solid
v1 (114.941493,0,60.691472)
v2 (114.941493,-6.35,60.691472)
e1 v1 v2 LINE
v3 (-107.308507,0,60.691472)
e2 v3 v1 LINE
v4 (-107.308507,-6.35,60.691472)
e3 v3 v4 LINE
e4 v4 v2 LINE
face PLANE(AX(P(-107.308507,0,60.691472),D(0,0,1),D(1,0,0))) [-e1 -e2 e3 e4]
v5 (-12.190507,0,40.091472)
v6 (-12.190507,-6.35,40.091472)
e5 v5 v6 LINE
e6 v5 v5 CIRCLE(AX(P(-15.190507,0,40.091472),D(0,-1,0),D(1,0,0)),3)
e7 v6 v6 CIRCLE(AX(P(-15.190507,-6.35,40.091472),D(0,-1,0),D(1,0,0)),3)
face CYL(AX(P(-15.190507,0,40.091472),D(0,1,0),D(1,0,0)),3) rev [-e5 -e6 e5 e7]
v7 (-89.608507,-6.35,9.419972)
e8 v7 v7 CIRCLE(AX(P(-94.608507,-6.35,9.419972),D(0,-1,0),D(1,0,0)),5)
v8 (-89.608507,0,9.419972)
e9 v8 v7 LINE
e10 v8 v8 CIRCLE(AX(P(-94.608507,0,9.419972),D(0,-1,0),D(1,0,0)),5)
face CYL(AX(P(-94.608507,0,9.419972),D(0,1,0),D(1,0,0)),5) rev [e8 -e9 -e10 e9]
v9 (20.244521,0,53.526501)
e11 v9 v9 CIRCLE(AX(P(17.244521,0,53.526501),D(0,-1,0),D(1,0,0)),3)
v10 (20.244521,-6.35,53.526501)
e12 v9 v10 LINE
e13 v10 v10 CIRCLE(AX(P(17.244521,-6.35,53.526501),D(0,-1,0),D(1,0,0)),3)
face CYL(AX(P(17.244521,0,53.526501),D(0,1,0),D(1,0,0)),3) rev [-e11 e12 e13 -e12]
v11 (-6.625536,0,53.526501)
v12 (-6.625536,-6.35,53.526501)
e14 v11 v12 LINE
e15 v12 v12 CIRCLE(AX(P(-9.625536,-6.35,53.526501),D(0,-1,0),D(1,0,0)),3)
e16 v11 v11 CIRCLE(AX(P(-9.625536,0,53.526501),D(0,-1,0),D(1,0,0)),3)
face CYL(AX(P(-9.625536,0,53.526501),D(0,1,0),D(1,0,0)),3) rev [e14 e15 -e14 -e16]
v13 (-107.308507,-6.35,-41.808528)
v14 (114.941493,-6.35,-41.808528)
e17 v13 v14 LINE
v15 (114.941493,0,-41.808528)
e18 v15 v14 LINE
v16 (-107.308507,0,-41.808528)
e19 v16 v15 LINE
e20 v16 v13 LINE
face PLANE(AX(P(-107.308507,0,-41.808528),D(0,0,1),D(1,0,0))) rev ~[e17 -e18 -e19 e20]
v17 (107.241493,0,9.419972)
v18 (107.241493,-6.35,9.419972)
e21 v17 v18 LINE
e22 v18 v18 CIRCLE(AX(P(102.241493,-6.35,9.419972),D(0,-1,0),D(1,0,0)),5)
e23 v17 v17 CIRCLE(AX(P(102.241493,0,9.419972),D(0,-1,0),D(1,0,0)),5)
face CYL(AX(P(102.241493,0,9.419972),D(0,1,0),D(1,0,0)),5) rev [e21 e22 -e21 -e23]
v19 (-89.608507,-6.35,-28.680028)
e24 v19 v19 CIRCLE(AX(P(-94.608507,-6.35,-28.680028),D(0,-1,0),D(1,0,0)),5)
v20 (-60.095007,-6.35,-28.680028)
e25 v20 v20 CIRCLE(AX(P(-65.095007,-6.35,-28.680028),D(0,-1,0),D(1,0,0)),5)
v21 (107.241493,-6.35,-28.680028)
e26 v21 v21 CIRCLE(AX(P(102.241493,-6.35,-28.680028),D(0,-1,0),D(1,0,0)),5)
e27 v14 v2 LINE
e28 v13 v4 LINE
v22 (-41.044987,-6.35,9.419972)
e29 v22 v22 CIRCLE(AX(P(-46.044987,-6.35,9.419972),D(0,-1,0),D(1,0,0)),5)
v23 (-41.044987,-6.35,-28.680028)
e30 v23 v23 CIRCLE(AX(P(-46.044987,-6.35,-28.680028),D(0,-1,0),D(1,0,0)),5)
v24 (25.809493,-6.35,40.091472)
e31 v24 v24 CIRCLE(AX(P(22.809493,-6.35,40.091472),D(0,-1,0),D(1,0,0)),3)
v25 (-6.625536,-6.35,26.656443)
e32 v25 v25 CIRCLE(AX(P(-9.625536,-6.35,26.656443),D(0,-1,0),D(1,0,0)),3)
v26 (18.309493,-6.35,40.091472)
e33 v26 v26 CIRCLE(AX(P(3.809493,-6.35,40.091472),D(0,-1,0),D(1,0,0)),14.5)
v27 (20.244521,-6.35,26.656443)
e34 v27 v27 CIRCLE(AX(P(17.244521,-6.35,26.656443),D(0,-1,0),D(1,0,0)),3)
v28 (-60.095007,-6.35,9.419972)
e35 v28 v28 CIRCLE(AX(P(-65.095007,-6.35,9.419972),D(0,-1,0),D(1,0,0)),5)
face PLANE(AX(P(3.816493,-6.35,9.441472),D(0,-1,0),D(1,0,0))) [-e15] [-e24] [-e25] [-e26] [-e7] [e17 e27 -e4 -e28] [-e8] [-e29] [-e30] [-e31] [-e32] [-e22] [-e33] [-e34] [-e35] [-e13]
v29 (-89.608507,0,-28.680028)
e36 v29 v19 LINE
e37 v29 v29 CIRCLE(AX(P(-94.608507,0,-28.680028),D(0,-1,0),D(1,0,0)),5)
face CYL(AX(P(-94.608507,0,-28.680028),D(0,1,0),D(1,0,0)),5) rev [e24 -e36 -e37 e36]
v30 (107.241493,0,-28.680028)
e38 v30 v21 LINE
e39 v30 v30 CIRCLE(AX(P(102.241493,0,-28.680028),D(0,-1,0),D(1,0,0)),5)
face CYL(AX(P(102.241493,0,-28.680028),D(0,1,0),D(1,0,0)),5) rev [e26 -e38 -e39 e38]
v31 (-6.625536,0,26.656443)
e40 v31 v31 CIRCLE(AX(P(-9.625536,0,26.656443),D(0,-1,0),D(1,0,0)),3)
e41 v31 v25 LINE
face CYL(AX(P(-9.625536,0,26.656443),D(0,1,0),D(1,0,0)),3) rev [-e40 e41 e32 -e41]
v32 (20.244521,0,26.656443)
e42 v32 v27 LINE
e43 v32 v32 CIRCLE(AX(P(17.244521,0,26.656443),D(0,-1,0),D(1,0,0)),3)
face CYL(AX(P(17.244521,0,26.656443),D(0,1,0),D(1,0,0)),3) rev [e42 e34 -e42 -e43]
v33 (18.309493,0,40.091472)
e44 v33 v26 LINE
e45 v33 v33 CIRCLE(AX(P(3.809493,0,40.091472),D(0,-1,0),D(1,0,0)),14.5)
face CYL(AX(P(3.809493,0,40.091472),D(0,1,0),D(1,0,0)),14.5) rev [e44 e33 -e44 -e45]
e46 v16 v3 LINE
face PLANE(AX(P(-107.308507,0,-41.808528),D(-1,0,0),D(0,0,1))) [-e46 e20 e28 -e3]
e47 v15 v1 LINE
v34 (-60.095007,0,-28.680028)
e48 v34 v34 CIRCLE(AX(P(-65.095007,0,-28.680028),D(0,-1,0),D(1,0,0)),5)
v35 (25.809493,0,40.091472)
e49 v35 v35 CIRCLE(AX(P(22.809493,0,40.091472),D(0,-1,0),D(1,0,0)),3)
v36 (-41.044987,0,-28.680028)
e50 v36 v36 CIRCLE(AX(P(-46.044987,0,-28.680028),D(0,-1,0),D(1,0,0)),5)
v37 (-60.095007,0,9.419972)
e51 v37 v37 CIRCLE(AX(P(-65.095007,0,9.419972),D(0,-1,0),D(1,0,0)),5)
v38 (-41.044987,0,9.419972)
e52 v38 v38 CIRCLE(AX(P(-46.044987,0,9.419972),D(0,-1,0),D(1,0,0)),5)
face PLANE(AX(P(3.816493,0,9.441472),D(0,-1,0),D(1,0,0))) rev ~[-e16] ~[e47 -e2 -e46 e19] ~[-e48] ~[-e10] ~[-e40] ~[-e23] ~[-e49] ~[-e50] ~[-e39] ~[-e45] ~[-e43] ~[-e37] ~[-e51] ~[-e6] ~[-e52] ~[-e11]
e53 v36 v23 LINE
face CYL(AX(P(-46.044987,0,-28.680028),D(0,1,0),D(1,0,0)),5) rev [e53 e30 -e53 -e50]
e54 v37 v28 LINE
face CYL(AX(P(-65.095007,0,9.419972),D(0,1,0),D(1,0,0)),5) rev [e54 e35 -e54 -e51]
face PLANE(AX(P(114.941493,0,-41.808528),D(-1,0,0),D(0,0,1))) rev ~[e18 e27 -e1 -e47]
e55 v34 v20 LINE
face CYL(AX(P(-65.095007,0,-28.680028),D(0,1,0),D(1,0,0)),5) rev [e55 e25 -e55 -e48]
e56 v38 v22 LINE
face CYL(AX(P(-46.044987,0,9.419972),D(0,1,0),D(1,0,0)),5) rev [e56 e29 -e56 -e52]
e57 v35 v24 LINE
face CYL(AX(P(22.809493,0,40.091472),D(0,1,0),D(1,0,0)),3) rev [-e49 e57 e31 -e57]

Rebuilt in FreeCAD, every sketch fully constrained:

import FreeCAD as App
import Part
import Sketcher

V = App.Vector
Q = App.Units.Quantity

doc = App.newDocument("Part")
body = doc.addObject("PartDesign::Body", "Body")

sketch1 = doc.addObject("Sketcher::SketchObject", "Sketch")
body.addObject(sketch1)
sketch1.AttachmentSupport = (doc.XZ_Plane, [""])
sketch1.MapMode = "FlatFace"
sketch1.addGeometry(Part.LineSegment(V(-107.3, 60.7, 0), V(-107.3, -41.8, 0)), False)
sketch1.addGeometry(Part.LineSegment(V(-107.3, -41.8, 0), V(114.9, -41.8, 0)), False)
sketch1.addGeometry(Part.LineSegment(V(114.9, -41.8, 0), V(114.9, 60.7, 0)), False)
sketch1.addGeometry(Part.LineSegment(V(114.9, 60.7, 0), V(-107.3, 60.7, 0)), False)
sketch1.addGeometry(Part.Circle(V(-94.6, -28.7, 0), V(0, 0, 1), 5), False)
sketch1.addGeometry(Part.Circle(V(-65.1, -28.7, 0), V(0, 0, 1), 5), False)
sketch1.addGeometry(Part.Circle(V(-46, -28.7, 0), V(0, 0, 1), 5), False)
sketch1.addGeometry(Part.Circle(V(-94.6, 9.4, 0), V(0, 0, 1), 5), False)
sketch1.addGeometry(Part.Circle(V(-65.1, 9.4, 0), V(0, 0, 1), 5), False)
sketch1.addGeometry(Part.Circle(V(-46, 9.4, 0), V(0, 0, 1), 5), False)
sketch1.addGeometry(Part.Circle(V(102.2, -28.7, 0), V(0, 0, 1), 5), False)
sketch1.addGeometry(Part.Circle(V(102.2, 9.4, 0), V(0, 0, 1), 5), False)
sketch1.addGeometry(Part.Circle(V(-9.6, 26.7, 0), V(0, 0, 1), 3), False)
sketch1.addGeometry(Part.Circle(V(-15.2, 40.1, 0), V(0, 0, 1), 3), False)
sketch1.addGeometry(Part.Circle(V(3.8, 40.1, 0), V(0, 0, 1), 14.5), False)
sketch1.addGeometry(Part.Circle(V(-9.6, 53.5, 0), V(0, 0, 1), 3), False)
sketch1.addGeometry(Part.Circle(V(17.2, 26.7, 0), V(0, 0, 1), 3), False)
sketch1.addGeometry(Part.Circle(V(22.8, 40.1, 0), V(0, 0, 1), 3), False)
sketch1.addGeometry(Part.Circle(V(17.2, 53.5, 0), V(0, 0, 1), 3), False)
sketch1.addConstraint(Sketcher.Constraint("Coincident", 0, 2, 1, 1))
sketch1.addConstraint(Sketcher.Constraint("Coincident", 1, 2, 2, 1))
sketch1.addConstraint(Sketcher.Constraint("Coincident", 2, 2, 3, 1))
sketch1.addConstraint(Sketcher.Constraint("Coincident", 3, 2, 0, 1))
sketch1.addConstraint(Sketcher.Constraint("Vertical", 0))
sketch1.addConstraint(Sketcher.Constraint("Horizontal", 1))
sketch1.addConstraint(Sketcher.Constraint("Vertical", 2))
sketch1.addConstraint(Sketcher.Constraint("Horizontal", 3))
sketch1.addConstraint(Sketcher.Constraint("Equal", 4, 5))
sketch1.addConstraint(Sketcher.Constraint("Equal", 5, 6))
sketch1.addConstraint(Sketcher.Constraint("Equal", 6, 7))
sketch1.addConstraint(Sketcher.Constraint("Equal", 7, 8))
sketch1.addConstraint(Sketcher.Constraint("Equal", 8, 9))
sketch1.addConstraint(Sketcher.Constraint("Equal", 9, 10))
sketch1.addConstraint(Sketcher.Constraint("Equal", 10, 11))
sketch1.addConstraint(Sketcher.Constraint("Equal", 12, 13))
sketch1.addConstraint(Sketcher.Constraint("Equal", 13, 15))
sketch1.addConstraint(Sketcher.Constraint("Equal", 15, 16))
sketch1.addConstraint(Sketcher.Constraint("Equal", 16, 17))
sketch1.addConstraint(Sketcher.Constraint("Equal", 17, 18))
sketch1.addConstraint(Sketcher.Constraint("Horizontal", 4, 3, 5, 3))
sketch1.addConstraint(Sketcher.Constraint("Horizontal", 5, 3, 6, 3))
sketch1.addConstraint(Sketcher.Constraint("Horizontal", 7, 3, 8, 3))
sketch1.addConstraint(Sketcher.Constraint("Horizontal", 8, 3, 9, 3))
sketch1.addConstraint(Sketcher.Constraint("Horizontal", 6, 3, 10, 3))
sketch1.addConstraint(Sketcher.Constraint("Horizontal", 9, 3, 11, 3))
sketch1.addConstraint(Sketcher.Constraint("Horizontal", 13, 3, 14, 3))
sketch1.addConstraint(Sketcher.Constraint("Horizontal", 12, 3, 16, 3))
sketch1.addConstraint(Sketcher.Constraint("Horizontal", 14, 3, 17, 3))
sketch1.addConstraint(Sketcher.Constraint("Horizontal", 15, 3, 18, 3))
sketch1.addConstraint(Sketcher.Constraint("Vertical", 4, 3, 7, 3))
sketch1.addConstraint(Sketcher.Constraint("Vertical", 5, 3, 8, 3))
sketch1.addConstraint(Sketcher.Constraint("Vertical", 6, 3, 9, 3))
sketch1.addConstraint(Sketcher.Constraint("Vertical", 10, 3, 11, 3))
sketch1.addConstraint(Sketcher.Constraint("Vertical", 12, 3, 15, 3))
sketch1.addConstraint(Sketcher.Constraint("Vertical", 16, 3, 18, 3))
sketch1.addConstraint(Sketcher.Constraint("Diameter", 4, Q("10 mm")))
sketch1.addConstraint(Sketcher.Constraint("Diameter", 12, Q("6 mm")))
sketch1.addConstraint(Sketcher.Constraint("Diameter", 14, Q("29 mm")))
sketch1.addConstraint(Sketcher.Constraint("DistanceY", 0, 2, 0, 1, Q("102.5 mm")))
sketch1.addConstraint(Sketcher.Constraint("DistanceX", 13, 3, 14, 3, Q("19 mm")))
sketch1.addConstraint(Sketcher.Constraint("DistanceX", 14, 3, 17, 3, Q("19 mm")))
sketch1.addConstraint(Sketcher.Constraint("DistanceX", 1, 1, 1, 2, Q("222.25 mm")))
sketch1.addConstraint(Sketcher.Constraint("DistanceY", 4, 3, 7, 3, Q("38.1 mm")))
sketch1.addConstraint(Sketcher.Constraint("DistanceX", 0, 2, 4, 3, Q("12.7 mm")))
sketch1.addConstraint(Sketcher.Constraint("DistanceX", 10, 3, 1, 2, Q("12.7 mm")))
sketch1.addConstraint(Sketcher.Constraint("DistanceY", 1, 2, 17, 3, Q("81.9 mm")))
sketch1.addConstraint(Sketcher.Constraint("DistanceX", 17, 3, 1, 2, Q("92.132 mm")))
sketch1.addConstraint(Sketcher.Constraint("DistanceY", -1, 1, 15, 3, Q("53.526501 mm")))
sketch1.addConstraint(Sketcher.Constraint("DistanceX", 4, 3, 5, 3, Q("29.5135 mm")))
sketch1.addConstraint(Sketcher.Constraint("DistanceY", 9, 3, 13, 3, Q("30.6715 mm")))
sketch1.addConstraint(Sketcher.Constraint("DistanceY", 4, 3, -1, 1, Q("28.680028 mm")))
sketch1.addConstraint(Sketcher.Constraint("DistanceX", -1, 1, 16, 3, Q("17.244521 mm")))
sketch1.addConstraint(Sketcher.Constraint("DistanceX", 5, 3, 6, 3, Q("19.05002 mm")))
sketch1.addConstraint(Sketcher.Constraint("DistanceX", 9, 3, 12, 3, Q("36.419451 mm")))
sketch1.addConstraint(Sketcher.Constraint("DistanceY", 9, 3, 12, 3, Q("17.236471 mm")))
sketch1.addConstraint(Sketcher.Constraint("DistanceX", 13, 3, 16, 3, Q("32.435028 mm")))
pad1 = doc.addObject("PartDesign::Pad", "Pad")
body.addObject(pad1)
pad1.Profile = sketch1
pad1.Length = 6.35

doc.recompute()
